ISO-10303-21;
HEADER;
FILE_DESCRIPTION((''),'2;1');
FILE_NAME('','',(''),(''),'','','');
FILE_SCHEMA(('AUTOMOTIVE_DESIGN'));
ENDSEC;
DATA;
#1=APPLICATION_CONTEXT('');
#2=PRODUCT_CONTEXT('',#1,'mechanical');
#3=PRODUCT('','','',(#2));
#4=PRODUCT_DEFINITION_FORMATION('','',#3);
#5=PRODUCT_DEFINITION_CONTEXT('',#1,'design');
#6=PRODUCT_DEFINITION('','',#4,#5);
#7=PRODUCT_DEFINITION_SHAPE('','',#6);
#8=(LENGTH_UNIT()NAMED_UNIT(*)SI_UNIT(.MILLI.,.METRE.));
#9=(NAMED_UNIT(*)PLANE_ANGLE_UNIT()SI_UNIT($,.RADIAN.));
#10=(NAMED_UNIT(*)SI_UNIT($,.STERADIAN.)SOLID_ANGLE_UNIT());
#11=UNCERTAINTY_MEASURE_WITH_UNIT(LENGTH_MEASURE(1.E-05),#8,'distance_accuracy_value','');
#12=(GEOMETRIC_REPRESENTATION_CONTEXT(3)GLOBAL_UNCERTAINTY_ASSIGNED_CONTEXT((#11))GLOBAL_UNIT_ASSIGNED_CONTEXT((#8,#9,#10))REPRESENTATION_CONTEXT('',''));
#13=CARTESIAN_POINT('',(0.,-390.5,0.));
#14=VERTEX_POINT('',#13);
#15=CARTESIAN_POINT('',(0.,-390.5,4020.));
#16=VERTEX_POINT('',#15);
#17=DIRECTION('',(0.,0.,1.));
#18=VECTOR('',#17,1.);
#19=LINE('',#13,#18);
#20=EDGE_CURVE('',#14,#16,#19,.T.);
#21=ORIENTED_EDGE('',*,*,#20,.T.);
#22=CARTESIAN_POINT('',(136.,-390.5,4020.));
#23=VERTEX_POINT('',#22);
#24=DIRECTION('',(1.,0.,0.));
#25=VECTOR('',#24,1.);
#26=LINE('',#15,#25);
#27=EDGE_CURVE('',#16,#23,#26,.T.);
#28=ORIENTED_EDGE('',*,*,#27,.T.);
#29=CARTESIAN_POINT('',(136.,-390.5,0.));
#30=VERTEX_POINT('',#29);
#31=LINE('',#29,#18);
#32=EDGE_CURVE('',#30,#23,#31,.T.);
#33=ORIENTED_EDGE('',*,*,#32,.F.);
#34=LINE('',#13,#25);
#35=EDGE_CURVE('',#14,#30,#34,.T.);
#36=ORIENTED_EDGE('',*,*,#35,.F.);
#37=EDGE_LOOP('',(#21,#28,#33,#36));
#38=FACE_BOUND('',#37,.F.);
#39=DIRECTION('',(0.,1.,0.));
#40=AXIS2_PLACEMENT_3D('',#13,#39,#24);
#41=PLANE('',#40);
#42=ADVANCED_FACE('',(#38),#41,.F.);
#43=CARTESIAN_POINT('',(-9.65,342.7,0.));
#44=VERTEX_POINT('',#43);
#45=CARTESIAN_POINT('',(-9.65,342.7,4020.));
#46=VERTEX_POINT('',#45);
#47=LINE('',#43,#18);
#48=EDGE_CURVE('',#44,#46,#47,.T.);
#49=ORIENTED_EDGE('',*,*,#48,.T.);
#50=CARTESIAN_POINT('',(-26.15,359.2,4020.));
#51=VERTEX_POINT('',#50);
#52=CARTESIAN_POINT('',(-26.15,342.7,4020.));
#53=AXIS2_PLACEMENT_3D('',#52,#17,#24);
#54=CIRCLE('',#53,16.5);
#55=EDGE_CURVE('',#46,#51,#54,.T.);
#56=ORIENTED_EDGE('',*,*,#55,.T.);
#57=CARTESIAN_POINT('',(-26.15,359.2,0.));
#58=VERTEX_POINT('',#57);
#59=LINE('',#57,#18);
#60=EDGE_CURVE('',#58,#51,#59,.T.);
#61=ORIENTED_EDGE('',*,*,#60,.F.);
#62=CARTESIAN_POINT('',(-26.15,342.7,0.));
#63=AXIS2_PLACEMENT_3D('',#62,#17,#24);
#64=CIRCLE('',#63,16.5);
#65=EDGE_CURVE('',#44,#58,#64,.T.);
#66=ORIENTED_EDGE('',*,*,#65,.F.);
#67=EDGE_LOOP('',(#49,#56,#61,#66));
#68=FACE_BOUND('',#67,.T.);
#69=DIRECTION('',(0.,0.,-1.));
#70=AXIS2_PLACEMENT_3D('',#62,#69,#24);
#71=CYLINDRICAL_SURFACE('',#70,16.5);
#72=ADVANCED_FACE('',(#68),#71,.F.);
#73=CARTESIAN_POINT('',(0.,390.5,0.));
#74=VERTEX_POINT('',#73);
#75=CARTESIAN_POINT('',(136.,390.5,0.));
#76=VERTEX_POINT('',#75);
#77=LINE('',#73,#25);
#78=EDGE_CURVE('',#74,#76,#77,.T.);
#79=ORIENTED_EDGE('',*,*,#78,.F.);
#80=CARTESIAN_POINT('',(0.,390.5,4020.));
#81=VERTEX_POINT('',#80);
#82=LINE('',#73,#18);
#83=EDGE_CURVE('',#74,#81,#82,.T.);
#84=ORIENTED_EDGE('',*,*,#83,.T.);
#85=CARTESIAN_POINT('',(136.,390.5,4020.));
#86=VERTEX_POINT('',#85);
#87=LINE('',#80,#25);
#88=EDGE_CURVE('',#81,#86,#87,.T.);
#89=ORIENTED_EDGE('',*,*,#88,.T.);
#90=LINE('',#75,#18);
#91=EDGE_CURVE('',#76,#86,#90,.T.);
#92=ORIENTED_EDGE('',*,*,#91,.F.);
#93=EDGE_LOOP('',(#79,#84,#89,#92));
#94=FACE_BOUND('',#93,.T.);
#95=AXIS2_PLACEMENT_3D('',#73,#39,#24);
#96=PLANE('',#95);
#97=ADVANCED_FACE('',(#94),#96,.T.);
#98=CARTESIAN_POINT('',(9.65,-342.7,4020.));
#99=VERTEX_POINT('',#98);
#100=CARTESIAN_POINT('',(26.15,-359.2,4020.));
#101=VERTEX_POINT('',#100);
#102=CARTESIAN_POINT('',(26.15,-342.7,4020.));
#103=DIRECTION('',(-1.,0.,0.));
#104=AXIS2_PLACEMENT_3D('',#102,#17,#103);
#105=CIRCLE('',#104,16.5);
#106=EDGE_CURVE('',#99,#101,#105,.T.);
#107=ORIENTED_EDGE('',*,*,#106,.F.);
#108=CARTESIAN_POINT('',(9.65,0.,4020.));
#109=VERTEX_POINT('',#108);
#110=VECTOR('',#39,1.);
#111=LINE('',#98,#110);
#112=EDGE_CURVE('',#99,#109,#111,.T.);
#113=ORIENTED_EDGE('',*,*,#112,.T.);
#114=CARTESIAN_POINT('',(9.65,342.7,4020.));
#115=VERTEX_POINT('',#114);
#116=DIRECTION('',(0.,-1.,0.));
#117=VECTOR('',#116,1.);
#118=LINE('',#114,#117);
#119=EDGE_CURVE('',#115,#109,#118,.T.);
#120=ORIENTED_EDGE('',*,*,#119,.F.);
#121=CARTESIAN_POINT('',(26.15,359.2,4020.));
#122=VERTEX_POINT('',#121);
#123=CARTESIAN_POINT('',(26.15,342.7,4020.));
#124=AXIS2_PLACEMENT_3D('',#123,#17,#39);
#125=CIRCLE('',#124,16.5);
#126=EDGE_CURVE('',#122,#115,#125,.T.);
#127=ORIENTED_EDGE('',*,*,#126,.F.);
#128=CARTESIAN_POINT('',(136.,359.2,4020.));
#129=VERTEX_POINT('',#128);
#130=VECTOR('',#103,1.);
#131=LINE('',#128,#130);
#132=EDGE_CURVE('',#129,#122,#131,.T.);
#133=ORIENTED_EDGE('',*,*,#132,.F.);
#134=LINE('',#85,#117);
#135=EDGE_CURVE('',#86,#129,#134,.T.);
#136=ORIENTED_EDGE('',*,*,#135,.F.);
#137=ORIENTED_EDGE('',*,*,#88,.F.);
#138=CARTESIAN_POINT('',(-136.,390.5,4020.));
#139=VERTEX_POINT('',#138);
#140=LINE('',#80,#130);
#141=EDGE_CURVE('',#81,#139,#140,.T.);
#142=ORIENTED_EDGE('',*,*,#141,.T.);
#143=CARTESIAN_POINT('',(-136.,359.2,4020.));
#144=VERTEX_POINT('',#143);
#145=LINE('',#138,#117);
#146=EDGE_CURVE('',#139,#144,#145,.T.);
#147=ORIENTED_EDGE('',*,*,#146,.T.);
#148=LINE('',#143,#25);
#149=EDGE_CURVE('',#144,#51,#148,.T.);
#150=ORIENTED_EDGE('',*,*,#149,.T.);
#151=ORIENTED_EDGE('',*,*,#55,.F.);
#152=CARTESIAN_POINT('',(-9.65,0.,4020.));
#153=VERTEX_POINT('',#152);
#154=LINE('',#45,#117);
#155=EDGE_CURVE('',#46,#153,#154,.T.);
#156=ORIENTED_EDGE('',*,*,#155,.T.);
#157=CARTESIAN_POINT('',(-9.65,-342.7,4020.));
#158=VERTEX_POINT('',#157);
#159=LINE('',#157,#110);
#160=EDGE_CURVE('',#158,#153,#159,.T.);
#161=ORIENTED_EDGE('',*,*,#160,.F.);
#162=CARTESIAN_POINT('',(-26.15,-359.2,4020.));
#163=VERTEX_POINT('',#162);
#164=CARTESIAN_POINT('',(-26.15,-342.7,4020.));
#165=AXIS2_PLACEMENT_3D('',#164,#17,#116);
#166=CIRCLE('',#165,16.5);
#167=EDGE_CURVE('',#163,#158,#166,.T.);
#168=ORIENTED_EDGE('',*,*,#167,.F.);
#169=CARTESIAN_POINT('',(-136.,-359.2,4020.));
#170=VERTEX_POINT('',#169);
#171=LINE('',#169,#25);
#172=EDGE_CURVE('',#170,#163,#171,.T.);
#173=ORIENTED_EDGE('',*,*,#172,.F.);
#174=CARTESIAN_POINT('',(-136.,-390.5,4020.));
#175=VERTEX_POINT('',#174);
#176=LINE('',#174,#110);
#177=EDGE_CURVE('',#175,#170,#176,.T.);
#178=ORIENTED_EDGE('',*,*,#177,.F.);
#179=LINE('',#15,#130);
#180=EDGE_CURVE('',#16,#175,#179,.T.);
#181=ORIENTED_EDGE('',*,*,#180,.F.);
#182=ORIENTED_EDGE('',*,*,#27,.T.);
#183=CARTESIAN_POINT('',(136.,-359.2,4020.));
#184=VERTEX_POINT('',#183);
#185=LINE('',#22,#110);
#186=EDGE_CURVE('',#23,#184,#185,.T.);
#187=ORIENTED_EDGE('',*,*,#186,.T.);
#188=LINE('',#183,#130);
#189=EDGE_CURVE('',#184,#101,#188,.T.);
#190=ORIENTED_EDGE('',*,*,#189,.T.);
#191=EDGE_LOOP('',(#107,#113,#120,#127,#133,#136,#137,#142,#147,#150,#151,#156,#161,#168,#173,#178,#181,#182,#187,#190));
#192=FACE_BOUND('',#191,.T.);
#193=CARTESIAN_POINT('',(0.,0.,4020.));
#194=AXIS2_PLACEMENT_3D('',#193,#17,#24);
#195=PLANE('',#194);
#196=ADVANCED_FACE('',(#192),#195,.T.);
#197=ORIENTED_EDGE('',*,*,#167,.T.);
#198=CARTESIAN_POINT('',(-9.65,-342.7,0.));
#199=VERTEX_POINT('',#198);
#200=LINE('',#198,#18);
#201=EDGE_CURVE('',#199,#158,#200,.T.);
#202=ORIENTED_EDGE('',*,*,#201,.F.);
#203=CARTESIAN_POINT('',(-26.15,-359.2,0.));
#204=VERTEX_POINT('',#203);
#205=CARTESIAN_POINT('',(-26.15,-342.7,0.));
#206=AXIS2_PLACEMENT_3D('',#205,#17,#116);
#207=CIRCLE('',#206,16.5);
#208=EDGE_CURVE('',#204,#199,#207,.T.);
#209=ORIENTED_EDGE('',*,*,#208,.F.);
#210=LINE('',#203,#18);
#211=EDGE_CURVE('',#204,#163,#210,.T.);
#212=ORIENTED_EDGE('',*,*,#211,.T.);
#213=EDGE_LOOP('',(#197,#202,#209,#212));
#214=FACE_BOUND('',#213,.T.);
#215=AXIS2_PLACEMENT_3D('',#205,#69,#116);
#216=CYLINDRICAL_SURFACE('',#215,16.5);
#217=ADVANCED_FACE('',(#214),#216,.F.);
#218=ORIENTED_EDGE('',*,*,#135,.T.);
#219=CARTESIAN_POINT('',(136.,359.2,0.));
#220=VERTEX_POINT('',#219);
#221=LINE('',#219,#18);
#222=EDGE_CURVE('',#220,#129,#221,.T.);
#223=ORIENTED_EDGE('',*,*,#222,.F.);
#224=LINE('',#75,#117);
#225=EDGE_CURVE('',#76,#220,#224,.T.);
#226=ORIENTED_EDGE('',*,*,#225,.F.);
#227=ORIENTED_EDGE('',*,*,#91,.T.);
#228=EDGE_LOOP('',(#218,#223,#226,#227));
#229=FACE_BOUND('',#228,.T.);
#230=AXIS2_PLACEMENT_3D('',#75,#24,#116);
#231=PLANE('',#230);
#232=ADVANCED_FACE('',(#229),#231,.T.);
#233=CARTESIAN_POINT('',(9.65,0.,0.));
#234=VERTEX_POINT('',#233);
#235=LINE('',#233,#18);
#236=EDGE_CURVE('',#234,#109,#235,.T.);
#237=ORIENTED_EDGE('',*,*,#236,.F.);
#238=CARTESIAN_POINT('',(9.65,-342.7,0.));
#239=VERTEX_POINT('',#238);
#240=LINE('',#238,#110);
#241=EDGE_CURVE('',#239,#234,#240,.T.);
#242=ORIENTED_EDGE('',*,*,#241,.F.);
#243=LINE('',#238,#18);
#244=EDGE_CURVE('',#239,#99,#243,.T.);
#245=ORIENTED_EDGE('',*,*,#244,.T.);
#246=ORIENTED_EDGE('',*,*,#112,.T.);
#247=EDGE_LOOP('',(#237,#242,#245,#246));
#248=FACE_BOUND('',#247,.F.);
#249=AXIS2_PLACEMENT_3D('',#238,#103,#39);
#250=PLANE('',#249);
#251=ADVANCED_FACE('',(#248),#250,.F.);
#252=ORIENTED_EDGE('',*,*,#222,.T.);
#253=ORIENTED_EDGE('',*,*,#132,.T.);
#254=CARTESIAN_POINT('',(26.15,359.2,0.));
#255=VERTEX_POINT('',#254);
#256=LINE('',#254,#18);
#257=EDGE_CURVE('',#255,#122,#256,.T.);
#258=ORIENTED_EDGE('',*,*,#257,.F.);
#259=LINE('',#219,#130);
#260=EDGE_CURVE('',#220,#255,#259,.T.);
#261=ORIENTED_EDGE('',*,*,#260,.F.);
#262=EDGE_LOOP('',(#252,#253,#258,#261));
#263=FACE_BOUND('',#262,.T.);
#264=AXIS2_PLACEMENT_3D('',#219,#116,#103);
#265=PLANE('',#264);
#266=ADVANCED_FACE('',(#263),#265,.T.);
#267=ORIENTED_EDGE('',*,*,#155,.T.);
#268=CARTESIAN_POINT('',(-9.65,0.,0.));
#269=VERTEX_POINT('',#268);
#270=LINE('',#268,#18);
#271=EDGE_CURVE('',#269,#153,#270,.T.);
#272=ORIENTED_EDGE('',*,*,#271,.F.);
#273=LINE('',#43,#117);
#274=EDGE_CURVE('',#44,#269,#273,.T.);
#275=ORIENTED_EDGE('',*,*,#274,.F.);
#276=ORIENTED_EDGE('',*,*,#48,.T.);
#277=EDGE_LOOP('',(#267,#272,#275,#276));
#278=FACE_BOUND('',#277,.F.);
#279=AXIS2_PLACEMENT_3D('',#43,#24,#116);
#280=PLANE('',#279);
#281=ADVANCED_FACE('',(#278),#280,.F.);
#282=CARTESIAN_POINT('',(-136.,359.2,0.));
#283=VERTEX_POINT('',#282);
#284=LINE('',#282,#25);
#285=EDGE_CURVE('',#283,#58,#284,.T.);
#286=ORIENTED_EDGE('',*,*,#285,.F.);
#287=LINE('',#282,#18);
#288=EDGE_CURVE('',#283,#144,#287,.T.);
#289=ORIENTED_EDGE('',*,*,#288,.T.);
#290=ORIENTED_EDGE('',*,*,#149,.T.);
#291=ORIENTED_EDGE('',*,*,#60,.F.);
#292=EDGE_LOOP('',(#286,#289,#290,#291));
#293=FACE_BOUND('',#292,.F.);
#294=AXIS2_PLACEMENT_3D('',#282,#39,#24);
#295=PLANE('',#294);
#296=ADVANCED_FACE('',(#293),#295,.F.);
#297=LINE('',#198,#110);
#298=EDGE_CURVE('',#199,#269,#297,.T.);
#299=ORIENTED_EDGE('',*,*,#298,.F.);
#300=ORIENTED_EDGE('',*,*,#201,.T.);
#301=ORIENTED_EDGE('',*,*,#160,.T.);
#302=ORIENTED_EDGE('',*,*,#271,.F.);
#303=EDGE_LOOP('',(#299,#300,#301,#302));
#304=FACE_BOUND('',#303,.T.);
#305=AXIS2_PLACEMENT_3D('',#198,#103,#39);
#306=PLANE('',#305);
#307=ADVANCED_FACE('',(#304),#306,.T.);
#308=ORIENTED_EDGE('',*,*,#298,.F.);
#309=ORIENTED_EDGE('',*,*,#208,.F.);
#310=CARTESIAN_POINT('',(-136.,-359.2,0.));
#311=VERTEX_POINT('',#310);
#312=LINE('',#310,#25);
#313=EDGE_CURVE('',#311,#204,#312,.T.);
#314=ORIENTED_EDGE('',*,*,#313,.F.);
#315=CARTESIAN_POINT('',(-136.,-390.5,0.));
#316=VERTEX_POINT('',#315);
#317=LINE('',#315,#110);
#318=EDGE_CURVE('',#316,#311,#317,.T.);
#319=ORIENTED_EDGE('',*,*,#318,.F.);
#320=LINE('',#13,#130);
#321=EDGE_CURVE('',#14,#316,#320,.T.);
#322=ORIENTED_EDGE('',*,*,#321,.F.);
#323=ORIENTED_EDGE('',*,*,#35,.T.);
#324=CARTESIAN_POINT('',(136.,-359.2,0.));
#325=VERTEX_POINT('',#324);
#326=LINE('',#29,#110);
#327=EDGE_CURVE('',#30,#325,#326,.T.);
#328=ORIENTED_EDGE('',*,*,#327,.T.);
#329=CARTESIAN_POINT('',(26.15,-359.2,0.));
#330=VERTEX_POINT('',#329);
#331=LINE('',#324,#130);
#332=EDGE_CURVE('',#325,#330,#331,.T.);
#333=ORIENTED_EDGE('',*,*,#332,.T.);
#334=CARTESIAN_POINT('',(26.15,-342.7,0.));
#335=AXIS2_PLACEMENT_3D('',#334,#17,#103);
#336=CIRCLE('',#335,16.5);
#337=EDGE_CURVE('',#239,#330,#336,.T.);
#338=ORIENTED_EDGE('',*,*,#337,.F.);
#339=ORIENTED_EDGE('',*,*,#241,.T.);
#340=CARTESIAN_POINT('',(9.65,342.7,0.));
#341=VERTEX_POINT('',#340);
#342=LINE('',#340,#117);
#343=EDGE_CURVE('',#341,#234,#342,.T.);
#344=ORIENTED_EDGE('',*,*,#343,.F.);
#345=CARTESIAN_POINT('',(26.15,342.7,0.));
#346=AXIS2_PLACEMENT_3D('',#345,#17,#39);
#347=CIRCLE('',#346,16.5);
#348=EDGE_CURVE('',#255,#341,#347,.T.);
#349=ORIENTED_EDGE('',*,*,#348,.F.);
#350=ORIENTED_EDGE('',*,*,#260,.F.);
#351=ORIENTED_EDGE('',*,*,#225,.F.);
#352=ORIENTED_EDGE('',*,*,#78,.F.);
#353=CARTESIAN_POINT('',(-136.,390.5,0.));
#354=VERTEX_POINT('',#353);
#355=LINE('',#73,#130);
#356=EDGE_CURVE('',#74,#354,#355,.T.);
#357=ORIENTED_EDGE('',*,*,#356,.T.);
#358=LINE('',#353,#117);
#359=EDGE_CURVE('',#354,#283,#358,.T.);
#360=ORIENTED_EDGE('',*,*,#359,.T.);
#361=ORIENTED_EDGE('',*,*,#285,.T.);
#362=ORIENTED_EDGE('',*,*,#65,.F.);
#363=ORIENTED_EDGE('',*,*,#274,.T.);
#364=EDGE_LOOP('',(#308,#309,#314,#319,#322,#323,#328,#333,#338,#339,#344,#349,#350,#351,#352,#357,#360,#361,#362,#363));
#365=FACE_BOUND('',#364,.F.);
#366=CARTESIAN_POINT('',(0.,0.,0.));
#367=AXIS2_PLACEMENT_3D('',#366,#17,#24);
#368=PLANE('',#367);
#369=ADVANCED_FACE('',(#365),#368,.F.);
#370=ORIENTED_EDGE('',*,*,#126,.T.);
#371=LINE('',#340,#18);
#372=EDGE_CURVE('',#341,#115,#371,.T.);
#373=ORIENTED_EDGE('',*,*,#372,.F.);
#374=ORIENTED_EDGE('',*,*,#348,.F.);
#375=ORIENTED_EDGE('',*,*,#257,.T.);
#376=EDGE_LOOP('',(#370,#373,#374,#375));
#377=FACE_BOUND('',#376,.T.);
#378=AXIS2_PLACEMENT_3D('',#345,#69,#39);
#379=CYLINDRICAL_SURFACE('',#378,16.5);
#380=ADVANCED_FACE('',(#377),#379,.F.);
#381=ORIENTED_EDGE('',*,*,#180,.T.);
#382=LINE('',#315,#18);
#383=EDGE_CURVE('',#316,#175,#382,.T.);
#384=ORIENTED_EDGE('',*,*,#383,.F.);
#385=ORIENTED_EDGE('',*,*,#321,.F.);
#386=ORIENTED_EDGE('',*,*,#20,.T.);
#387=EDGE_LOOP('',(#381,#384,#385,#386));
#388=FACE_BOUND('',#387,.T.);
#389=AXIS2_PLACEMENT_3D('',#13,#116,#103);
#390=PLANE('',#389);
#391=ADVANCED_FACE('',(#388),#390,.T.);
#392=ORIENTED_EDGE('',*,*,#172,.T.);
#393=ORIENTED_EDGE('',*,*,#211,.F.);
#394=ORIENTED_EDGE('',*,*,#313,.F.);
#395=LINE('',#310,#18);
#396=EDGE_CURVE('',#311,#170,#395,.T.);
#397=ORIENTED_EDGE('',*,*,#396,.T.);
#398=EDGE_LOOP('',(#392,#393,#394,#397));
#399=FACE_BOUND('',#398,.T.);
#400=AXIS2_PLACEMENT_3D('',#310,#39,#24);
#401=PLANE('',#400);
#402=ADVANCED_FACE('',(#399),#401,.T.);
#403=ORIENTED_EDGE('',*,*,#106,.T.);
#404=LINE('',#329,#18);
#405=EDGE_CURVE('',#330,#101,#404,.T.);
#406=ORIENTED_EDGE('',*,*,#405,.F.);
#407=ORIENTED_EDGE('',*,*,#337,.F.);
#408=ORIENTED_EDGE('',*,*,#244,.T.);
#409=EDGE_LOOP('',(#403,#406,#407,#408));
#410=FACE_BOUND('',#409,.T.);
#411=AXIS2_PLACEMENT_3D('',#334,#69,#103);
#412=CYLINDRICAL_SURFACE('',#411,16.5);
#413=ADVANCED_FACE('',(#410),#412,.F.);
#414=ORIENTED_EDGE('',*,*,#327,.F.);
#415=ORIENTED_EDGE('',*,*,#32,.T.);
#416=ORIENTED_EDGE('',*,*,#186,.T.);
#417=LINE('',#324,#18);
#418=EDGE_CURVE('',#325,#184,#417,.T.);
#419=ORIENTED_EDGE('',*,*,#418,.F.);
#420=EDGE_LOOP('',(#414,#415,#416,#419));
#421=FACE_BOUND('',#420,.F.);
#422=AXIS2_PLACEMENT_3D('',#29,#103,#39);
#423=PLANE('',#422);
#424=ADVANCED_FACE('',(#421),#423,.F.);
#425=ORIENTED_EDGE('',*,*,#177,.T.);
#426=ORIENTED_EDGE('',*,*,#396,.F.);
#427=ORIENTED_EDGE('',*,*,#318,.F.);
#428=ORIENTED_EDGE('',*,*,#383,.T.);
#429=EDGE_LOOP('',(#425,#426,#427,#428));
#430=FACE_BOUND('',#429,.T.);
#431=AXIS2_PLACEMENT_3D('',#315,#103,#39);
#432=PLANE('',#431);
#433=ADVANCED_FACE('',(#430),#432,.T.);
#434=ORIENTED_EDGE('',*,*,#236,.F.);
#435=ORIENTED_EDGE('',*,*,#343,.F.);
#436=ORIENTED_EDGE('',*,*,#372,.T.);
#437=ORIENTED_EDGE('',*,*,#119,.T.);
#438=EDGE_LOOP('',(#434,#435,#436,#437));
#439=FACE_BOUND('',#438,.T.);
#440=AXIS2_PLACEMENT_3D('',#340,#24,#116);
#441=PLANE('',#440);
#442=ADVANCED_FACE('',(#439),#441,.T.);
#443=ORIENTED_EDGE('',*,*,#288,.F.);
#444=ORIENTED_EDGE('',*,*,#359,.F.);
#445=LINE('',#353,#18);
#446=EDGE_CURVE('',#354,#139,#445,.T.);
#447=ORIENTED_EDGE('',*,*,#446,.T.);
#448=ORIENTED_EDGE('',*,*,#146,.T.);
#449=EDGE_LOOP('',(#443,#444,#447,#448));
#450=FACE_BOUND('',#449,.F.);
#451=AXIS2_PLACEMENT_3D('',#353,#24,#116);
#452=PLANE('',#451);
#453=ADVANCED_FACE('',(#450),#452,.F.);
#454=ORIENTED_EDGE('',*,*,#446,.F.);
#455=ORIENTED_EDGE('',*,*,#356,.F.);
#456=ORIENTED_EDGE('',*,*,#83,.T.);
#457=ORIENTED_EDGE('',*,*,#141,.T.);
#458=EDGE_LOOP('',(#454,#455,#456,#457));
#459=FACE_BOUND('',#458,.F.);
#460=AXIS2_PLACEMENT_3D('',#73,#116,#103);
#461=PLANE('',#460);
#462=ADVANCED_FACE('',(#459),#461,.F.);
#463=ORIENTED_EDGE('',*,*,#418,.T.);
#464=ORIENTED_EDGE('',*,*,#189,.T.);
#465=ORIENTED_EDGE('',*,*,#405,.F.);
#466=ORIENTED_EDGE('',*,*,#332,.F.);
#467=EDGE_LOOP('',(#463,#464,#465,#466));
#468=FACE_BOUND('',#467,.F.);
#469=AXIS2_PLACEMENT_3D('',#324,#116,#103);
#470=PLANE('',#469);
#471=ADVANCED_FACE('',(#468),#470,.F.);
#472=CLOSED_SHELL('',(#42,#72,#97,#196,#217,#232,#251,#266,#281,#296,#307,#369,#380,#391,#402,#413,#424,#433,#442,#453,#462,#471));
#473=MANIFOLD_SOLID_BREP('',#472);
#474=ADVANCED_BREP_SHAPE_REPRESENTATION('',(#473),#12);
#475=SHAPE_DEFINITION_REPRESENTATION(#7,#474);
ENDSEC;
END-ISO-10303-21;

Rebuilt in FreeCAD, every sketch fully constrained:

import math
import FreeCAD as App
import Part
import Sketcher

V = App.Vector
Q = App.Units.Quantity

doc = App.newDocument("Part")
params = doc.addObject("Spreadsheet::Sheet", "Params")
for row, (alias, value) in enumerate([
    ("sketch1_radius", "16.5 mm"),
    ("sketch1_height", "31.3 mm"),
    ("pad1_length", "4020 mm"),
], start=1):
    params.set(f"A{row}", alias)
    params.set(f"B{row}", "=" + value)
    params.setAlias(f"B{row}", alias)

body = doc.addObject("PartDesign::Body", "Body")

sketch1 = body.newObject("Sketcher::SketchObject", "Sketch")
sketch1.AttachmentSupport = (doc.getObject("XY_Plane"), [""])
sketch1.MapMode = "FlatFace"
sketch1.addGeometry([
    Part.LineSegment(V(-136, -359, 0), V(-136, -390, 0)),
    Part.LineSegment(V(-136, -390, 0), V(136, -390, 0)),
    Part.LineSegment(V(136, -390, 0), V(136, -359, 0)),
    Part.LineSegment(V(136, -359, 0), V(26, -359, 0)),
    Part.ArcOfCircle(Part.Circle(V(26, -343, 0), V(0, 0, 1), 16), math.radians(180), math.radians(270)),
    Part.LineSegment(V(10, -343, 0), V(10, 343, 0)),
    Part.ArcOfCircle(Part.Circle(V(26, 343, 0), V(0, 0, 1), 16), math.radians(90), math.radians(180)),
    Part.LineSegment(V(26, 359, 0), V(136, 359, 0)),
    Part.LineSegment(V(136, 359, 0), V(136, 390, 0)),
    Part.LineSegment(V(136, 390, 0), V(-136, 390, 0)),
    Part.LineSegment(V(-136, 390, 0), V(-136, 359, 0)),
    Part.LineSegment(V(-136, 359, 0), V(-26, 359, 0)),
    Part.ArcOfCircle(Part.Circle(V(-26, 343, 0), V(0, 0, 1), 16), math.radians(0), math.radians(90)),
    Part.LineSegment(V(-10, 343, 0), V(-10, -343, 0)),
    Part.ArcOfCircle(Part.Circle(V(-26, -343, 0), V(0, 0, 1), 16), math.radians(-90), math.radians(0)),
    Part.LineSegment(V(-26, -359, 0), V(-136, -359, 0)),
], False)
sketch1.addConstraint([
    Sketcher.Constraint("Coincident", 0, 2, 1, 1),
    Sketcher.Constraint("Coincident", 1, 2, 2, 1),
    Sketcher.Constraint("Coincident", 2, 2, 3, 1),
    Sketcher.Constraint("Tangent", 3, 2, 4, 2),
    Sketcher.Constraint("Tangent", 4, 1, 5, 1),
    Sketcher.Constraint("Tangent", 5, 2, 6, 2),
    Sketcher.Constraint("Tangent", 6, 1, 7, 1),
    Sketcher.Constraint("Coincident", 7, 2, 8, 1),
    Sketcher.Constraint("Coincident", 8, 2, 9, 1),
    Sketcher.Constraint("Coincident", 9, 2, 10, 1),
    Sketcher.Constraint("Coincident", 10, 2, 11, 1),
    Sketcher.Constraint("Tangent", 11, 2, 12, 2),
    Sketcher.Constraint("Tangent", 12, 1, 13, 1),
    Sketcher.Constraint("Tangent", 13, 2, 14, 2),
    Sketcher.Constraint("Tangent", 14, 1, 15, 1),
    Sketcher.Constraint("Coincident", 15, 2, 0, 1),
    Sketcher.Constraint("Vertical", 0),
    Sketcher.Constraint("Horizontal", 1),
    Sketcher.Constraint("Vertical", 2),
    Sketcher.Constraint("Horizontal", 3),
    Sketcher.Constraint("Vertical", 5),
    Sketcher.Constraint("Horizontal", 7),
    Sketcher.Constraint("Vertical", 8),
    Sketcher.Constraint("Horizontal", 9),
    Sketcher.Constraint("Vertical", 10),
    Sketcher.Constraint("Horizontal", 11),
    Sketcher.Constraint("Vertical", 13),
    Sketcher.Constraint("Horizontal", 15),
    Sketcher.Constraint("Equal", 4, 6),
    Sketcher.Constraint("Equal", 6, 12),
    Sketcher.Constraint("Equal", 12, 14),
    Sketcher.Constraint("Symmetric", 4, 3, 12, 3, -1, 1),
    Sketcher.Constraint("Symmetric", 0, 2, 8, 2, -1, 1),
    Sketcher.Constraint("Symmetric", 7, 2, 10, 2, -2),
    Sketcher.Constraint("Symmetric", 2, 2, 15, 2, -2),
    Sketcher.Constraint("Radius", 4, Q("16.5 mm")),
    Sketcher.Constraint("DistanceY", 0, 2, 0, 1, Q("31.3 mm")),
    Sketcher.Constraint("DistanceX", 0, 2, -1, 1, Q("136 mm")),
    Sketcher.Constraint("DistanceY", 0, 2, -1, 1, Q("390.5 mm")),
    Sketcher.Constraint("DistanceX", -1, 1, 4, 1, Q("9.65 mm")),
])
sketch1.setExpression("Constraints[35]", "Params.sketch1_radius")
sketch1.setExpression("Constraints[36]", "Params.sketch1_height")
pad1 = body.newObject("PartDesign::Pad", "Pad")
pad1.Profile = sketch1
pad1.setExpression("Length", "Params.pad1_length")

doc.recompute()
